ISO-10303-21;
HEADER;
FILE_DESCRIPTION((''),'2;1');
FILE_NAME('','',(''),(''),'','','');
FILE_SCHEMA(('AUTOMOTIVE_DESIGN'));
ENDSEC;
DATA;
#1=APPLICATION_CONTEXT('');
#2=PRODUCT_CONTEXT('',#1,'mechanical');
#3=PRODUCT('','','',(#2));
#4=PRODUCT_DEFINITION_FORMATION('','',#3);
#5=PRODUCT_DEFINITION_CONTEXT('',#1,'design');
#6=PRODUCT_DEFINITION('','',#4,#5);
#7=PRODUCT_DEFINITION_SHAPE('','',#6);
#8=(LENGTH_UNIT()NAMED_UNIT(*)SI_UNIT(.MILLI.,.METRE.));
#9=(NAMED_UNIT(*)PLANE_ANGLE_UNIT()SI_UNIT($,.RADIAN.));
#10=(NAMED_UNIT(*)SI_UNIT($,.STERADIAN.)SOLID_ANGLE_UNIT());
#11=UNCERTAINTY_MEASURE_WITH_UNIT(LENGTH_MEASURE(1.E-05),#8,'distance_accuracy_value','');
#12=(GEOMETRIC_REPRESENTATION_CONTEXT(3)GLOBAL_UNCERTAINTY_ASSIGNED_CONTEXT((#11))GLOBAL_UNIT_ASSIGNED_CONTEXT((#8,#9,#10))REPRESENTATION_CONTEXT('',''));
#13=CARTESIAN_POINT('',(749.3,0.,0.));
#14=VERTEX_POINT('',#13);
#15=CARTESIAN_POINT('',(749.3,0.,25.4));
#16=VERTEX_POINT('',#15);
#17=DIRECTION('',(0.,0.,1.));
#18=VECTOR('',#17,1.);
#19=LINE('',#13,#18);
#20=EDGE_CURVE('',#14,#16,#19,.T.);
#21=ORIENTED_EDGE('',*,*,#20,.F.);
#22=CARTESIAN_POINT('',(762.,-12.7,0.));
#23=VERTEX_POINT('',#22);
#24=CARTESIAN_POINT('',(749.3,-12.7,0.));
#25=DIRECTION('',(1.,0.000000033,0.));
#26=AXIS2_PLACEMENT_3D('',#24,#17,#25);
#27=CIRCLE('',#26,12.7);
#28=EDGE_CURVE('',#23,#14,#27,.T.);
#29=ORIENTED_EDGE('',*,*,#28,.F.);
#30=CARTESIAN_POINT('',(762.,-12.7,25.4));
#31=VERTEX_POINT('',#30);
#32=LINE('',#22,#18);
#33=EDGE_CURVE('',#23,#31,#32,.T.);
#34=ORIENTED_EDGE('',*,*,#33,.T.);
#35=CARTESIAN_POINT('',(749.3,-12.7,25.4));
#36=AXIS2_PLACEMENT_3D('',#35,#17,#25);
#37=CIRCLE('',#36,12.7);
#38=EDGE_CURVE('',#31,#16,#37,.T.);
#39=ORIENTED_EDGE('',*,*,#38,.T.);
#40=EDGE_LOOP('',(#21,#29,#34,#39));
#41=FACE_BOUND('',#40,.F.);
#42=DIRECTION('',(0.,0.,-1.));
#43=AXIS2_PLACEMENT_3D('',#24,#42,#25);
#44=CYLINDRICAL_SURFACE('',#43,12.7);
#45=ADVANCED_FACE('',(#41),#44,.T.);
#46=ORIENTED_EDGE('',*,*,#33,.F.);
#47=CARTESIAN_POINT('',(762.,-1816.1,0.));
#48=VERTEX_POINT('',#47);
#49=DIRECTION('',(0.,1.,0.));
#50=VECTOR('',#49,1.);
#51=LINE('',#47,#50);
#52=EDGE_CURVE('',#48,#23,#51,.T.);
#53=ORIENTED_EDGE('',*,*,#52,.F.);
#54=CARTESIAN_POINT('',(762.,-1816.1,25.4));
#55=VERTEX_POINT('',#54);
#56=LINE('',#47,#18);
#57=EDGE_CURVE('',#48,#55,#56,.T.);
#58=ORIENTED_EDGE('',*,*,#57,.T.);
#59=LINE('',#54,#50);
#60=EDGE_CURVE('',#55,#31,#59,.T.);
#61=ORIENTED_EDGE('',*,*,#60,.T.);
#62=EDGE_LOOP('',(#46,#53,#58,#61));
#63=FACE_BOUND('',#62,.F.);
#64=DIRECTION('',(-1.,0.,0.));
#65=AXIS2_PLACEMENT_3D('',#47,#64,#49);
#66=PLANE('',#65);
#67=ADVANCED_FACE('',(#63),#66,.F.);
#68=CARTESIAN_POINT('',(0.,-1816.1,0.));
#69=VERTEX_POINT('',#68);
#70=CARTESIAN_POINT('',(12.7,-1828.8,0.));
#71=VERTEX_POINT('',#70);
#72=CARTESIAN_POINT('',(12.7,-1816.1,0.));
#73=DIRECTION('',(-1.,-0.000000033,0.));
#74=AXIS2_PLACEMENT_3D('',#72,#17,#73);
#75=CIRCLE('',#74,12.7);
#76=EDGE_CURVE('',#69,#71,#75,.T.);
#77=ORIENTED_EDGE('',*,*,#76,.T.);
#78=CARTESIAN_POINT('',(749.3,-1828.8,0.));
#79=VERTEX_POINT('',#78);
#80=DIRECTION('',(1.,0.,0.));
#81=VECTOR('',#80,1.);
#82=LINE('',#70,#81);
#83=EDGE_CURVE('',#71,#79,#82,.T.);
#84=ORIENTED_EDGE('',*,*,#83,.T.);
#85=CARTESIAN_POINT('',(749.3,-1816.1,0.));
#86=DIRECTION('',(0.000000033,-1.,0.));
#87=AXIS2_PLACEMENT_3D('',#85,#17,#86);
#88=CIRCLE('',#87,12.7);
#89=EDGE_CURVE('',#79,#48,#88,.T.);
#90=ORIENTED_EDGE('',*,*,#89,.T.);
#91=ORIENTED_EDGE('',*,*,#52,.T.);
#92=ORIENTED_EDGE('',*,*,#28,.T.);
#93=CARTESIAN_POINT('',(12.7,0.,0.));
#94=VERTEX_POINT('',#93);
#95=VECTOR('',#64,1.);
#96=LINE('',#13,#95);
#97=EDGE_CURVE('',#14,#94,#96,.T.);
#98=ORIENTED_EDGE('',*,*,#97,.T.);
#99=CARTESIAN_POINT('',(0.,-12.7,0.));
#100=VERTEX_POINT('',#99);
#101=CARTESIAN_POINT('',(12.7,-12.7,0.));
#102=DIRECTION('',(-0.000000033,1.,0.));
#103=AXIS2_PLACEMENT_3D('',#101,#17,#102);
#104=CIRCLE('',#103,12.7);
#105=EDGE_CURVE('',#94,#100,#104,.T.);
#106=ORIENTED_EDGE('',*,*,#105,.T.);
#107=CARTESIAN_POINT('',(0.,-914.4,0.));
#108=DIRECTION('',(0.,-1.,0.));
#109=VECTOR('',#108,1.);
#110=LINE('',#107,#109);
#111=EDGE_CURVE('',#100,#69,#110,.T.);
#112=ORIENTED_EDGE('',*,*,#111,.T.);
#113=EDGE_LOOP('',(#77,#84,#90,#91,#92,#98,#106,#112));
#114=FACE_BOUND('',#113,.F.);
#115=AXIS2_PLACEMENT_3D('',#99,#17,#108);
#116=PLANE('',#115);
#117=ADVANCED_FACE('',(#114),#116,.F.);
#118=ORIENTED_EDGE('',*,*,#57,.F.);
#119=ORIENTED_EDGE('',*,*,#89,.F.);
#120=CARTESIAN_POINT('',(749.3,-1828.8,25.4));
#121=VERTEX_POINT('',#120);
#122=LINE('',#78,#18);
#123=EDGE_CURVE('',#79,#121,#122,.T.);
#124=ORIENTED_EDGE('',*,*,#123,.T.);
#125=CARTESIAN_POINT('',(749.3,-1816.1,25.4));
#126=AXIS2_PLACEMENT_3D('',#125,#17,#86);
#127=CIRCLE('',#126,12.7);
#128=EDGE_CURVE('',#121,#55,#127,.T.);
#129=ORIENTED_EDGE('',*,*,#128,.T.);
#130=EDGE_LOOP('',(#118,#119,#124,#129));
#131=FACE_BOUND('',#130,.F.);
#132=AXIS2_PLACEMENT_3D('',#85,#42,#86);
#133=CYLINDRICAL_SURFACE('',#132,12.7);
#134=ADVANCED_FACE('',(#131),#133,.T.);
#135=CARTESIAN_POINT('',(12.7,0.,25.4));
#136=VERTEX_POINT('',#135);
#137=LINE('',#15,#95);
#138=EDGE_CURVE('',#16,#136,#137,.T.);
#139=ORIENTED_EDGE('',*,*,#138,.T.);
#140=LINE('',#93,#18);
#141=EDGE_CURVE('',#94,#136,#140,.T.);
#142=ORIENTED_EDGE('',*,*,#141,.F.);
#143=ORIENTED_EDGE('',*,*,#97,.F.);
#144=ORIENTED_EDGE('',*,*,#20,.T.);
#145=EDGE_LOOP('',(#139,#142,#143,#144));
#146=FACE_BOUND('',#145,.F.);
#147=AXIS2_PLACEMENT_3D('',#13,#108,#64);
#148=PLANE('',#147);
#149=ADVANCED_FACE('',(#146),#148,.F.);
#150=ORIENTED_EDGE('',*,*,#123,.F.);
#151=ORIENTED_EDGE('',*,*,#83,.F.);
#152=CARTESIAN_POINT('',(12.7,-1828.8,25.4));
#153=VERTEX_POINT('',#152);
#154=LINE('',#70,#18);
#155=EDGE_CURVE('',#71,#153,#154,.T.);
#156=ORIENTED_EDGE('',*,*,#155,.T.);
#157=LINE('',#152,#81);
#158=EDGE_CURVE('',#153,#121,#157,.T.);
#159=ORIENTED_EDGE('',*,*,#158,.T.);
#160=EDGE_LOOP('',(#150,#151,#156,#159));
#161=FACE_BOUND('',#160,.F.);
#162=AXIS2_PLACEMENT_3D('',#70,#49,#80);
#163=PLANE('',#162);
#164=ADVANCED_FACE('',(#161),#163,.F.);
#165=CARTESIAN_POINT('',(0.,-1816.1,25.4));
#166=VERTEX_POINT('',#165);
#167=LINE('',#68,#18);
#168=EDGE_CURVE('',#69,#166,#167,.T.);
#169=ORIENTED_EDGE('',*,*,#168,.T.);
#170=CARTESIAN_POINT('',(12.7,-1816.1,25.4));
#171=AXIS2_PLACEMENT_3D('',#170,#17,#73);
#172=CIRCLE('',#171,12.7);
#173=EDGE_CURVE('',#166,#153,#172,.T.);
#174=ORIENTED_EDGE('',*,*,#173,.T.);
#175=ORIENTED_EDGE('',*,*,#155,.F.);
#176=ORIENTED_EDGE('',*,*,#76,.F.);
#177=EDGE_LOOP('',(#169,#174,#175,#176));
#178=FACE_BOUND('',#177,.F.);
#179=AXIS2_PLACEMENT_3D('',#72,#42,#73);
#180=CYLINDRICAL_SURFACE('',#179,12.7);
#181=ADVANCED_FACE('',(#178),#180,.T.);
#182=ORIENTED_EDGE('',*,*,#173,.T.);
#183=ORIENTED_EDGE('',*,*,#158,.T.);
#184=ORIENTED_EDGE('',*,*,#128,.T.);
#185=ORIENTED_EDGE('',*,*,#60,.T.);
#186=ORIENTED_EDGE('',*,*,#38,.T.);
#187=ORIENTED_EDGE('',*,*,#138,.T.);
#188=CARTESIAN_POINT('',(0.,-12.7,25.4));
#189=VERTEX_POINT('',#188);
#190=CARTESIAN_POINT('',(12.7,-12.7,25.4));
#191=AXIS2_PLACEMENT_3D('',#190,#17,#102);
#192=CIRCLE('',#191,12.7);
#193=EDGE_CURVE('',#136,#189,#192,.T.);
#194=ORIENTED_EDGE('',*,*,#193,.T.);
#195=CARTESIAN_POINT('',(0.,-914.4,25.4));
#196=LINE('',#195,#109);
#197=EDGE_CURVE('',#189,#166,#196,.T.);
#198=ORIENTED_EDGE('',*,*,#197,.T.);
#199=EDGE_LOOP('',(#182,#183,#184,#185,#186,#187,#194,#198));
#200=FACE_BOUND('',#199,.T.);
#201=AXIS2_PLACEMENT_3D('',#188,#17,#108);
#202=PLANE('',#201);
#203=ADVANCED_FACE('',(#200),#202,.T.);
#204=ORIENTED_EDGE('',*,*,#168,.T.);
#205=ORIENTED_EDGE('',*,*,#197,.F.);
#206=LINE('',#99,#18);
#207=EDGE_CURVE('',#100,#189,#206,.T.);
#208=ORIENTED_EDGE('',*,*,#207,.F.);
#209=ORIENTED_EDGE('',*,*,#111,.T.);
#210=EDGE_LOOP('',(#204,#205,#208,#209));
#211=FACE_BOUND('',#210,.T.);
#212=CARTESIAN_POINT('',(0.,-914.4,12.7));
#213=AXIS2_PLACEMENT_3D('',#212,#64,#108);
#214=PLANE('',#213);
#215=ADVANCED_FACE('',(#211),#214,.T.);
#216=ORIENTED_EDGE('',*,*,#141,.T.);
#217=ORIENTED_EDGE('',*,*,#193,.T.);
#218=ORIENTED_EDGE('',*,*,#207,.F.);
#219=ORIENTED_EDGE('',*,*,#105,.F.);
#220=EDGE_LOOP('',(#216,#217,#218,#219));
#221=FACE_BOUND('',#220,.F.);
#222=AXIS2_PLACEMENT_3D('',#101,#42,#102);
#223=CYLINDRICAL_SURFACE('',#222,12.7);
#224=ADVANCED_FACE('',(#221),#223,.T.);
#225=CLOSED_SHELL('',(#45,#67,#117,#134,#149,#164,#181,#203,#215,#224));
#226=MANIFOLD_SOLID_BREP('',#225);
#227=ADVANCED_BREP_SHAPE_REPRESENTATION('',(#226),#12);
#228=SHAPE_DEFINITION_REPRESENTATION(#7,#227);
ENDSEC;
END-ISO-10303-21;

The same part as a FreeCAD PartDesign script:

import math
import FreeCAD as App
import Part
import Sketcher
Q = App.Units.Quantity


def add_polygon(sketch, points):
    """Adds a closed chain of lines whose ends are joined by coincident constraints."""
    first, n = sketch.GeometryCount, len(points)
    for a, b in zip(points, points[1:] + points[:1]):
        sketch.addGeometry(Part.LineSegment(App.Vector(*a, 0), App.Vector(*b, 0)), False)
    for i in range(n):
        sketch.addConstraint(Sketcher.Constraint("Coincident", first + i, 2, first + (i + 1) % n, 1))

doc = App.newDocument("Part")
body = doc.addObject("PartDesign::Body", "Body")

sketch1 = body.newObject("Sketcher::SketchObject", "Sketch")
sketch1.AttachmentSupport = (doc.getObject("XY_Plane"), [""])
sketch1.MapMode = "FlatFace"
sketch1.addGeometry(Part.LineSegment(App.Vector(749, 0, 0), App.Vector(13, 0, 0)), False)
sketch1.addGeometry(Part.ArcOfCircle(Part.Circle(App.Vector(13, -13, 0), App.Vector(0, 0, 1), 13), math.radians(90), math.radians(180)), False)
sketch1.addGeometry(Part.LineSegment(App.Vector(0, -13, 0), App.Vector(0, -1816, 0)), False)
sketch1.addGeometry(Part.ArcOfCircle(Part.Circle(App.Vector(13, -1816, 0), App.Vector(0, 0, 1), 13), math.radians(-180), math.radians(-90)), False)
sketch1.addGeometry(Part.LineSegment(App.Vector(13, -1829, 0), App.Vector(749, -1829, 0)), False)
sketch1.addGeometry(Part.ArcOfCircle(Part.Circle(App.Vector(749, -1816, 0), App.Vector(0, 0, 1), 13), math.radians(-90), math.radians(0)), False)
sketch1.addGeometry(Part.LineSegment(App.Vector(762, -1816, 0), App.Vector(762, -13, 0)), False)
sketch1.addGeometry(Part.ArcOfCircle(Part.Circle(App.Vector(749, -13, 0), App.Vector(0, 0, 1), 13), math.radians(0), math.radians(90)), False)
sketch1.addConstraint(Sketcher.Constraint("Tangent", 0, 2, 1, 1))
sketch1.addConstraint(Sketcher.Constraint("Tangent", 1, 2, 2, 1))
sketch1.addConstraint(Sketcher.Constraint("Tangent", 2, 2, 3, 1))
sketch1.addConstraint(Sketcher.Constraint("Tangent", 3, 2, 4, 1))
sketch1.addConstraint(Sketcher.Constraint("Tangent", 4, 2, 5, 1))
sketch1.addConstraint(Sketcher.Constraint("Tangent", 5, 2, 6, 1))
sketch1.addConstraint(Sketcher.Constraint("Tangent", 6, 2, 7, 1))
sketch1.addConstraint(Sketcher.Constraint("Tangent", 7, 2, 0, 1))
sketch1.addConstraint(Sketcher.Constraint("Horizontal", 0))
sketch1.addConstraint(Sketcher.Constraint("Vertical", 2))
sketch1.addConstraint(Sketcher.Constraint("Horizontal", 4))
sketch1.addConstraint(Sketcher.Constraint("Vertical", 6))
sketch1.addConstraint(Sketcher.Constraint("Equal", 1, 3))
sketch1.addConstraint(Sketcher.Constraint("Equal", 3, 5))
sketch1.addConstraint(Sketcher.Constraint("Equal", 5, 7))
sketch1.addConstraint(Sketcher.Constraint("PointOnObject", 0, 2, -1))
sketch1.addConstraint(Sketcher.Constraint("PointOnObject", 1, 2, -2))
sketch1.addConstraint(Sketcher.Constraint("Radius", 1, Q("0.5 in")))
sketch1.addConstraint(Sketcher.Constraint("DistanceX", 0, 2, 0, 1, Q("29 in")))
sketch1.addConstraint(Sketcher.Constraint("DistanceY", 2, 2, 2, 1, Q("71 in")))
pad1 = body.newObject("PartDesign::Pad", "Pad")
pad1.Profile = sketch1
pad1.Length = Q("1 in")

sketch2 = body.newObject("Sketcher::SketchObject", "Sketch001")
sketch2.AttachmentSupport = (doc.getObject("YZ_Plane"), [""])
sketch2.MapMode = "FlatFace"
add_polygon(sketch2, [(-13, 25), (-13, 0), (-1816, 0), (-1816, 25)])
sketch2.addConstraint(Sketcher.Constraint("Vertical", 0))
sketch2.addConstraint(Sketcher.Constraint("Horizontal", 1))
sketch2.addConstraint(Sketcher.Constraint("Vertical", 2))
sketch2.addConstraint(Sketcher.Constraint("Horizontal", 3))
sketch2.addConstraint(Sketcher.Constraint("PointOnObject", 0, 2, -1))
sketch2.addConstraint(Sketcher.Constraint("DistanceX", 1, 2, 1, 1, Q("71 in")))
sketch2.addConstraint(Sketcher.Constraint("DistanceY", 0, 2, 0, 1, Q("1 in")))
sketch2.addConstraint(Sketcher.Constraint("DistanceX", 0, 2, -1, 1, Q("0.5 in")))
pad2 = body.newObject("PartDesign::Pad", "Pad001")
pad2.Profile = sketch2
pad2.Length = Q("0.125 in")
pad2.Reversed = True

sketch3 = body.newObject("Sketcher::SketchObject", "Sketch002")
sketch3.AttachmentSupport = (doc.getObject("YZ_Plane"), [""])
sketch3.MapMode = "FlatFace"
sketch3.AttachmentOffset = App.Placement(App.Vector(0, 0, -0.125 * 25.4), App.Rotation())
add_polygon(sketch3, [(-13, 25), (-13, 0), (-1816, 0), (-1816, 25)])
sketch3.addConstraint(Sketcher.Constraint("Vertical", 0))
sketch3.addConstraint(Sketcher.Constraint("Horizontal", 1))
sketch3.addConstraint(Sketcher.Constraint("Vertical", 2))
sketch3.addConstraint(Sketcher.Constraint("Horizontal", 3))
sketch3.addConstraint(Sketcher.Constraint("PointOnObject", 0, 2, -1))
sketch3.addConstraint(Sketcher.Constraint("DistanceX", 1, 2, 1, 1, Q("71 in")))
sketch3.addConstraint(Sketcher.Constraint("DistanceY", 0, 2, 0, 1, Q("1 in")))
sketch3.addConstraint(Sketcher.Constraint("DistanceX", 0, 2, -1, 1, Q("0.5 in")))
pocket1 = body.newObject("PartDesign::Pocket", "Pocket")
pocket1.Profile = sketch3
pocket1.Length = Q("0.125 in")
pocket1.Reversed = True

doc.recompute()
